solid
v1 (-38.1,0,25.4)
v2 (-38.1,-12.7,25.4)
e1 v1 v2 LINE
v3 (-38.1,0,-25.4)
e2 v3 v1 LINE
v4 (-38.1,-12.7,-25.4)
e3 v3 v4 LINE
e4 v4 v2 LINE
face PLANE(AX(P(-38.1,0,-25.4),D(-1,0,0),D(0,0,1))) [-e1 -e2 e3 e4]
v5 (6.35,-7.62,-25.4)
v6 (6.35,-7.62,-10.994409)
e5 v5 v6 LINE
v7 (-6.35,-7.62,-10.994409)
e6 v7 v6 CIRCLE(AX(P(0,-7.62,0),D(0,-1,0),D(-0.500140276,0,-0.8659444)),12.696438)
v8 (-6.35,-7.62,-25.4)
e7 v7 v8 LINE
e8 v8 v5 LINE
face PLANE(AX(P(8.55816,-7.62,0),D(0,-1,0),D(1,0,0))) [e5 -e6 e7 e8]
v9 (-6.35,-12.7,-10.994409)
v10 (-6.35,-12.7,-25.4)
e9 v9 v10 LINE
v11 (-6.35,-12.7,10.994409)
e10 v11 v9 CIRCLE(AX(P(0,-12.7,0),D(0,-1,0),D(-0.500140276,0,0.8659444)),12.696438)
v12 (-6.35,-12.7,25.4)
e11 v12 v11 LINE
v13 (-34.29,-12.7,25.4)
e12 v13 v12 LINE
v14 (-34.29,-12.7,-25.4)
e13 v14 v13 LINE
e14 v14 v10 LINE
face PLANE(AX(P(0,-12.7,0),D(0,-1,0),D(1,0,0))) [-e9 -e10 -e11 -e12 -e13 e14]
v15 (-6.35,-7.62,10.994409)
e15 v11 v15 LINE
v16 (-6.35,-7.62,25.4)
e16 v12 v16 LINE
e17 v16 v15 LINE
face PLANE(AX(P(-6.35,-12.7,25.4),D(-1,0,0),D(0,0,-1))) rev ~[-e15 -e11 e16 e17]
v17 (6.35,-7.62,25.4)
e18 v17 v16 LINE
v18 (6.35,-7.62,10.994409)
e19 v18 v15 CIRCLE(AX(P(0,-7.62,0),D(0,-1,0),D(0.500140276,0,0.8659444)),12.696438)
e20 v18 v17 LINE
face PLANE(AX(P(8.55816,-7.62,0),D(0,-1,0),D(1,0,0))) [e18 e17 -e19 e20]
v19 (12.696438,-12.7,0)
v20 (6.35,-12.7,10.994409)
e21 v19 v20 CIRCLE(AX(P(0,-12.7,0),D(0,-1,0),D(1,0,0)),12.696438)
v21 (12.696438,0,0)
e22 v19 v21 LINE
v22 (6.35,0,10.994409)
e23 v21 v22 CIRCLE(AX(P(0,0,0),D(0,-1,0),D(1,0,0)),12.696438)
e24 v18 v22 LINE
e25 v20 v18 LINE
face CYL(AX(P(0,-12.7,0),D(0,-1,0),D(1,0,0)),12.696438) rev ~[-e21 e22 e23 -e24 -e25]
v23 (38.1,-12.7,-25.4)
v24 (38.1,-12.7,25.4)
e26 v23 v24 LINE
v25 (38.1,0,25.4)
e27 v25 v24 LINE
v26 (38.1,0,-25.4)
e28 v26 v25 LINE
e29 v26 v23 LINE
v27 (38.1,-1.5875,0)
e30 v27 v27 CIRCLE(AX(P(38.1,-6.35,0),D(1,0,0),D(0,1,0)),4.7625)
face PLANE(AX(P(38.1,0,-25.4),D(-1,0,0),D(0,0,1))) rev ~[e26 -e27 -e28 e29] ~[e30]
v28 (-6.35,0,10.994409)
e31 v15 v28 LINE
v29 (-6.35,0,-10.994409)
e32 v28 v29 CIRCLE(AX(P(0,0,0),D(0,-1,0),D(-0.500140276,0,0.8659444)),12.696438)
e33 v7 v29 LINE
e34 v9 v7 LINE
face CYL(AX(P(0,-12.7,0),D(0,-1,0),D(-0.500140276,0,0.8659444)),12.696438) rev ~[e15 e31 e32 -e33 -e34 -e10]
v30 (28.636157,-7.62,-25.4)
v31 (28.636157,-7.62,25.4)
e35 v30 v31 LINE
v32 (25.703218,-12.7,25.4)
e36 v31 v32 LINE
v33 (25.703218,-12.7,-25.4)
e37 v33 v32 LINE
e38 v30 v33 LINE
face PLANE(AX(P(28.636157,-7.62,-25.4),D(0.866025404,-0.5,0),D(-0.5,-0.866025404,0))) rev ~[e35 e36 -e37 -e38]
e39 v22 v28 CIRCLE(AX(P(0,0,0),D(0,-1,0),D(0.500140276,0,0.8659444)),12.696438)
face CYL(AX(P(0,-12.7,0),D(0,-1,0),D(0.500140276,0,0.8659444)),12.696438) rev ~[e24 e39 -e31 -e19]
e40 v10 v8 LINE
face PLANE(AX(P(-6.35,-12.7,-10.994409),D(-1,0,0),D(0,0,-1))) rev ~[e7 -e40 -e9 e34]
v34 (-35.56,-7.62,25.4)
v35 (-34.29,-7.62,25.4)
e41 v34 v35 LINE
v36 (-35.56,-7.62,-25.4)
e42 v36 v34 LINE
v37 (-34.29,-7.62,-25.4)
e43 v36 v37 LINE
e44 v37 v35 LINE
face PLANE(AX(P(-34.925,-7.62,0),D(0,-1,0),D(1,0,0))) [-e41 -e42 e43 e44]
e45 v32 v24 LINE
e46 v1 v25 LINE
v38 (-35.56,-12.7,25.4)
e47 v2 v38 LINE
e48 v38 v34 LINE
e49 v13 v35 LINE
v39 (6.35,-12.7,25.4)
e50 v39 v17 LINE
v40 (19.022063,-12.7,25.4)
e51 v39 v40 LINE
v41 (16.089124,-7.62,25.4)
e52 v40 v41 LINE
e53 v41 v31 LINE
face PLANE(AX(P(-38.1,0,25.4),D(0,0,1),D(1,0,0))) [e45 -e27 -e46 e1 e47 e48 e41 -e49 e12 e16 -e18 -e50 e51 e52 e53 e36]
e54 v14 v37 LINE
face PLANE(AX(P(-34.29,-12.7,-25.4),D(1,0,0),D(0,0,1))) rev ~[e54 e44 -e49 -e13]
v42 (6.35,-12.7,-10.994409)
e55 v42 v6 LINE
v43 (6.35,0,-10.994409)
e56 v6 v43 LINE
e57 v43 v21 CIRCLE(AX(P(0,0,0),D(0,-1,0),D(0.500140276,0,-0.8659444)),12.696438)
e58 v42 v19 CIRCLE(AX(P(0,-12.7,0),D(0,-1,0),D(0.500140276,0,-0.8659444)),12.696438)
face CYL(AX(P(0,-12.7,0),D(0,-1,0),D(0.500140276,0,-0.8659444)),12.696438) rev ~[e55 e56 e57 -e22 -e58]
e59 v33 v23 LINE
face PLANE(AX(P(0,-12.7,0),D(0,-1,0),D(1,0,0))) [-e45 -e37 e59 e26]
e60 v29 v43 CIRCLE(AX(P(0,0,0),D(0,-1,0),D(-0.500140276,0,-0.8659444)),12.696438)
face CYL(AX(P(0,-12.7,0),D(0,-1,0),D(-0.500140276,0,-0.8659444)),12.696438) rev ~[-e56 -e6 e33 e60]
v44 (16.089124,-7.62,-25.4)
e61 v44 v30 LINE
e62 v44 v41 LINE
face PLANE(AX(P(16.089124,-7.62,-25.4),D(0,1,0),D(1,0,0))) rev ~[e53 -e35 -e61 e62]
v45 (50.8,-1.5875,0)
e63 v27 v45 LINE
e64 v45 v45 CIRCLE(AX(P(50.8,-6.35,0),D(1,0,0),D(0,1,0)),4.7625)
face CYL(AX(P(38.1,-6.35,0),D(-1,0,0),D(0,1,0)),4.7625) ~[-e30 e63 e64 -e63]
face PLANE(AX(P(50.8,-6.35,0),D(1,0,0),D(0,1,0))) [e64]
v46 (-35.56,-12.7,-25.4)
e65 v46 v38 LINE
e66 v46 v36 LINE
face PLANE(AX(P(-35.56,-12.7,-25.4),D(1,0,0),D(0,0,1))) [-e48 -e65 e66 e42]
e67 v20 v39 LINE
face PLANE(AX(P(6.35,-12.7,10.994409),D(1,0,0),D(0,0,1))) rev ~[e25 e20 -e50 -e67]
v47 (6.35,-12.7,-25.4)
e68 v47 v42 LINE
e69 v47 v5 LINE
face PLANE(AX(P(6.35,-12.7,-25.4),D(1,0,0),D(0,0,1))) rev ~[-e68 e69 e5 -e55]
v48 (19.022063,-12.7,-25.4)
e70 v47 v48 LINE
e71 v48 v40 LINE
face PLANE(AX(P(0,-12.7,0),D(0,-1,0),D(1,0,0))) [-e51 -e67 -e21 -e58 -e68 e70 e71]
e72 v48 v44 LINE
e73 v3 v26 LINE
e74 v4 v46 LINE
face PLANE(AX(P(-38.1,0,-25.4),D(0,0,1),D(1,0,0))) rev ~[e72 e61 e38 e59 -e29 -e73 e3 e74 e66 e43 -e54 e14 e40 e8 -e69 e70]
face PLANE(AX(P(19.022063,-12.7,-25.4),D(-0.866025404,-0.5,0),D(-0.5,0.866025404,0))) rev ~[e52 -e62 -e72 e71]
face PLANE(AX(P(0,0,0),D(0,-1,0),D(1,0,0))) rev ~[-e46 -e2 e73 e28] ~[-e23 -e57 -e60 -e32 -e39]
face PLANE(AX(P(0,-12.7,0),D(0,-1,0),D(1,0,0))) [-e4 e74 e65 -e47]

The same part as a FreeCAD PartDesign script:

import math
import FreeCAD as App
import Part
import Sketcher

V = App.Vector
Q = App.Units.Quantity

doc = App.newDocument("Part")
body = doc.addObject("PartDesign::Body", "Body")

# Sketch on XZ plane
sketch1 = body.newObject("Sketcher::SketchObject", "Sketch")
sketch1.AttachmentSupport = (doc.getObject("XZ_Plane"), [""])
sketch1.MapMode = "FlatFace"
sketch1.addGeometry([
    Part.LineSegment(V(-38.1, 25.4, 0), V(-38.1, -25.4, 0)),
    Part.LineSegment(V(-38.1, -25.4, 0), V(38.1, -25.4, 0)),
    Part.LineSegment(V(38.1, -25.4, 0), V(38.1, 25.4, 0)),
    Part.LineSegment(V(38.1, 25.4, 0), V(-38.1, 25.4, 0)),
], False)
sketch1.addConstraint([
    Sketcher.Constraint("Coincident", 0, 2, 1, 1),
    Sketcher.Constraint("Coincident", 1, 2, 2, 1),
    Sketcher.Constraint("Coincident", 2, 2, 3, 1),
    Sketcher.Constraint("Coincident", 3, 2, 0, 1),
    Sketcher.Constraint("Vertical", 0),
    Sketcher.Constraint("Horizontal", 1),
    Sketcher.Constraint("Vertical", 2),
    Sketcher.Constraint("Horizontal", 3),
    Sketcher.Constraint("Symmetric", 0, 2, 2, 2, -1, 1),
    Sketcher.Constraint("DistanceX", 1, 1, 1, 2, Q("3 in")),
    Sketcher.Constraint("DistanceY", 0, 2, 0, 1, Q("2 in")),
])
pad1 = body.newObject("PartDesign::Pad", "Pad")
pad1.Profile = sketch1
pad1.Length = Q("0.5 in")

# Sketch on XZ plane
sketch2 = body.newObject("Sketcher::SketchObject", "Sketch001")
sketch2.AttachmentSupport = (doc.getObject("XZ_Plane"), [""])
sketch2.MapMode = "FlatFace"
sketch2.AttachmentOffset = App.Placement(V(0, 0, 0.5 * 25.4), App.Rotation())
sketch2.addGeometry([
    Part.ArcOfCircle(Part.Circle(V(0, 0, 0), V(0, 0, 1), 12.696438), math.radians(120.009281), math.radians(239.990719)),  # 0
    Part.ArcOfCircle(Part.Circle(V(0, 0, 0), V(0, 0, 1), 12.696438), math.radians(-120.009281), math.radians(-59.990719)),  # 1
    Part.ArcOfCircle(Part.Circle(V(0, 0, 0), V(0, 0, 1), 12.696438), math.radians(-59.990719), math.radians(0)),  # 2
    Part.ArcOfCircle(Part.Circle(V(0, 0, 0), V(0, 0, 1), 12.696438), math.radians(0), math.radians(59.990719)),  # 3
    Part.ArcOfCircle(Part.Circle(V(0, 0, 0), V(0, 0, 1), 12.696438), math.radians(59.990719), math.radians(120.009281)),  # 4
], False)
sketch2.addConstraint([
    Sketcher.Constraint("Tangent", 0, 2, 1, 1),
    Sketcher.Constraint("Tangent", 1, 2, 2, 1),
    Sketcher.Constraint("Tangent", 2, 2, 3, 1),
    Sketcher.Constraint("Tangent", 3, 2, 4, 1),
    Sketcher.Constraint("Tangent", 4, 2, 0, 1),
    Sketcher.Constraint("Coincident", 0, 3, -1, 1),
    Sketcher.Constraint("Coincident", 2, 3, -1, 1),
    Sketcher.Constraint("PointOnObject", 2, 2, -1),
    Sketcher.Constraint("Horizontal", 0, 2, 1, 2),
    Sketcher.Constraint("Horizontal", 3, 2, 4, 2),
    Sketcher.Constraint("Vertical", 1, 2, 3, 2),
    Sketcher.Constraint("DistanceX", 0, 2, -1, 1, Q("0.25 in")),
    Sketcher.Constraint("Radius", 0, 12.696438),
])
pocket1 = body.newObject("PartDesign::Pocket", "Pocket")
pocket1.Profile = sketch2
pocket1.Length = Q("0.5 in")

# Sketch on XZ plane
sketch3 = body.newObject("Sketcher::SketchObject", "Sketch002")
sketch3.AttachmentSupport = (doc.getObject("XZ_Plane"), [""])
sketch3.MapMode = "FlatFace"
sketch3.AttachmentOffset = App.Placement(V(0, 0, 0.5 * 25.4), App.Rotation())
sketch3.addGeometry([
    Part.LineSegment(V(-35.56, 25.4, 0), V(-35.56, -25.4, 0)),  # 0
    Part.LineSegment(V(-35.56, -25.4, 0), V(-34.29, -25.4, 0)),  # 1
    Part.LineSegment(V(-34.29, -25.4, 0), V(-34.29, 25.4, 0)),  # 2
    Part.LineSegment(V(-34.29, 25.4, 0), V(-35.56, 25.4, 0)),  # 3
    Part.ArcOfCircle(Part.Circle(V(0, 0, 0), V(0, 0, 1), 12.696438), math.radians(-59.990719), math.radians(0)),  # 4
    Part.ArcOfCircle(Part.Circle(V(0, 0, 0), V(0, 0, 1), 12.696438), math.radians(0), math.radians(59.990719)),  # 5
    Part.LineSegment(V(6.35, 10.994409, 0), V(6.35, 25.4, 0)),  # 6
    Part.LineSegment(V(6.35, 25.4, 0), V(-6.35, 25.4, 0)),  # 7
    Part.LineSegment(V(-6.35, 25.4, 0), V(-6.35, 10.994409, 0)),  # 8
    Part.ArcOfCircle(Part.Circle(V(0, 0, 0), V(0, 0, 1), 12.696438), math.radians(120.009281), math.radians(239.990719)),  # 9
    Part.LineSegment(V(-6.35, -10.994409, 0), V(-6.35, -25.4, 0)),  # 10
    Part.LineSegment(V(-6.35, -25.4, 0), V(6.35, -25.4, 0)),  # 11
    Part.LineSegment(V(6.35, -25.4, 0), V(6.35, -10.994409, 0)),  # 12
], False)
sketch3.addConstraint([
    Sketcher.Constraint("Coincident", 0, 2, 1, 1),
    Sketcher.Constraint("Coincident", 1, 2, 2, 1),
    Sketcher.Constraint("Coincident", 2, 2, 3, 1),
    Sketcher.Constraint("Coincident", 3, 2, 0, 1),
    Sketcher.Constraint("Tangent", 4, 2, 5, 1),
    Sketcher.Constraint("Coincident", 5, 2, 6, 1),
    Sketcher.Constraint("Coincident", 6, 2, 7, 1),
    Sketcher.Constraint("Coincident", 7, 2, 8, 1),
    Sketcher.Constraint("Coincident", 8, 2, 9, 1),
    Sketcher.Constraint("Coincident", 9, 2, 10, 1),
    Sketcher.Constraint("Coincident", 10, 2, 11, 1),
    Sketcher.Constraint("Coincident", 11, 2, 12, 1),
    Sketcher.Constraint("Coincident", 12, 2, 4, 1),
    Sketcher.Constraint("Vertical", 0),
    Sketcher.Constraint("Horizontal", 1),
    Sketcher.Constraint("Vertical", 2),
    Sketcher.Constraint("Horizontal", 3),
    Sketcher.Constraint("Vertical", 6),
    Sketcher.Constraint("Horizontal", 7),
    Sketcher.Constraint("Vertical", 8),
    Sketcher.Constraint("Vertical", 10),
    Sketcher.Constraint("Horizontal", 11),
    Sketcher.Constraint("Vertical", 12),
    Sketcher.Constraint("Coincident", 4, 3, -1, 1),
    Sketcher.Constraint("Coincident", 9, 3, -1, 1),
    Sketcher.Constraint("Equal", 4, 5),
    Sketcher.Constraint("Equal", 5, 9),
    Sketcher.Constraint("Symmetric", 6, 2, 10, 2, -1, 1),
    Sketcher.Constraint("PointOnObject", 4, 2, -1),
    Sketcher.Constraint("Horizontal", 3, 2, 6, 2),
    Sketcher.Constraint("Horizontal", 5, 2, 8, 2),
    Sketcher.Constraint("Horizontal", 1, 2, 10, 2),
    Sketcher.Constraint("Horizontal", 9, 2, 12, 2),
    Sketcher.Constraint("DistanceY", 0, 2, 0, 1, Q("2 in")),
    Sketcher.Constraint("DistanceX", 7, 2, 7, 1, Q("0.5 in")),
    Sketcher.Constraint("DistanceX", 1, 1, 1, 2, Q("0.05 in")),
    Sketcher.Constraint("DistanceX", 0, 2, -1, 1, Q("1.4 in")),
    Sketcher.Constraint("Radius", 4, 12.696438),
])
pocket2 = body.newObject("PartDesign::Pocket", "Pocket001")
pocket2.Profile = sketch3
pocket2.Length = Q("0.2 in")

# Sketch on XY plane
sketch4 = body.newObject("Sketcher::SketchObject", "Sketch003")
sketch4.AttachmentSupport = (doc.getObject("XY_Plane"), [""])
sketch4.MapMode = "FlatFace"
sketch4.AttachmentOffset = App.Placement(V(0, 0, -1 * 25.4), App.Rotation())
sketch4.addGeometry([
    Part.LineSegment(V(25.703218, -12.7, 0), V(19.022063, -12.7, 0)),
    Part.LineSegment(V(19.022063, -12.7, 0), V(16.089124, -7.62, 0)),
    Part.LineSegment(V(16.089124, -7.62, 0), V(28.636157, -7.62, 0)),
    Part.LineSegment(V(28.636157, -7.62, 0), V(25.703218, -12.7, 0)),
], False)
sketch4.addConstraint([
    Sketcher.Constraint("Coincident", 0, 2, 1, 1),
    Sketcher.Constraint("Coincident", 1, 2, 2, 1),
    Sketcher.Constraint("Coincident", 2, 2, 3, 1),
    Sketcher.Constraint("Coincident", 3, 2, 0, 1),
    Sketcher.Constraint("Horizontal", 0),
    Sketcher.Constraint("Horizontal", 2),
    Sketcher.Constraint("Equal", 1, 3),
    Sketcher.Constraint("Angle", 1, Q("120 deg")),
    Sketcher.Constraint("DistanceY", 0, 2, -1, 1, Q("0.5 in")),
    Sketcher.Constraint("DistanceY", 1, 2, -1, 1, Q("0.3 in")),
    Sketcher.Constraint("DistanceX", -1, 1, 0, 2, Q("0.7489001 in")),
    Sketcher.Constraint("DistanceX", 0, 2, 0, 1, 6.681154),
])
pocket3 = body.newObject("PartDesign::Pocket", "Pocket002")
pocket3.Profile = sketch4
pocket3.Length = Q("2 in")
pocket3.Reversed = True

# Sketch on YZ plane
sketch5 = body.newObject("Sketcher::SketchObject", "Sketch004")
sketch5.AttachmentSupport = (doc.getObject("YZ_Plane"), [""])
sketch5.MapMode = "FlatFace"
sketch5.AttachmentOffset = App.Placement(V(0, 0, 1.5 * 25.4), App.Rotation())
sketch5.addGeometry(Part.Circle(V(-6.35, 0, 0), V(0, 0, 1), 4.7625), False)
sketch5.addConstraint([
    Sketcher.Constraint("PointOnObject", 0, 3, -1),
    Sketcher.Constraint("Diameter", 0, Q("0.375 in")),
    Sketcher.Constraint("DistanceX", 0, 3, -1, 1, Q("0.25 in")),
])
pad2 = body.newObject("PartDesign::Pad", "Pad001")
pad2.Profile = sketch5
pad2.Length = Q("0.5 in")

doc.recompute()
